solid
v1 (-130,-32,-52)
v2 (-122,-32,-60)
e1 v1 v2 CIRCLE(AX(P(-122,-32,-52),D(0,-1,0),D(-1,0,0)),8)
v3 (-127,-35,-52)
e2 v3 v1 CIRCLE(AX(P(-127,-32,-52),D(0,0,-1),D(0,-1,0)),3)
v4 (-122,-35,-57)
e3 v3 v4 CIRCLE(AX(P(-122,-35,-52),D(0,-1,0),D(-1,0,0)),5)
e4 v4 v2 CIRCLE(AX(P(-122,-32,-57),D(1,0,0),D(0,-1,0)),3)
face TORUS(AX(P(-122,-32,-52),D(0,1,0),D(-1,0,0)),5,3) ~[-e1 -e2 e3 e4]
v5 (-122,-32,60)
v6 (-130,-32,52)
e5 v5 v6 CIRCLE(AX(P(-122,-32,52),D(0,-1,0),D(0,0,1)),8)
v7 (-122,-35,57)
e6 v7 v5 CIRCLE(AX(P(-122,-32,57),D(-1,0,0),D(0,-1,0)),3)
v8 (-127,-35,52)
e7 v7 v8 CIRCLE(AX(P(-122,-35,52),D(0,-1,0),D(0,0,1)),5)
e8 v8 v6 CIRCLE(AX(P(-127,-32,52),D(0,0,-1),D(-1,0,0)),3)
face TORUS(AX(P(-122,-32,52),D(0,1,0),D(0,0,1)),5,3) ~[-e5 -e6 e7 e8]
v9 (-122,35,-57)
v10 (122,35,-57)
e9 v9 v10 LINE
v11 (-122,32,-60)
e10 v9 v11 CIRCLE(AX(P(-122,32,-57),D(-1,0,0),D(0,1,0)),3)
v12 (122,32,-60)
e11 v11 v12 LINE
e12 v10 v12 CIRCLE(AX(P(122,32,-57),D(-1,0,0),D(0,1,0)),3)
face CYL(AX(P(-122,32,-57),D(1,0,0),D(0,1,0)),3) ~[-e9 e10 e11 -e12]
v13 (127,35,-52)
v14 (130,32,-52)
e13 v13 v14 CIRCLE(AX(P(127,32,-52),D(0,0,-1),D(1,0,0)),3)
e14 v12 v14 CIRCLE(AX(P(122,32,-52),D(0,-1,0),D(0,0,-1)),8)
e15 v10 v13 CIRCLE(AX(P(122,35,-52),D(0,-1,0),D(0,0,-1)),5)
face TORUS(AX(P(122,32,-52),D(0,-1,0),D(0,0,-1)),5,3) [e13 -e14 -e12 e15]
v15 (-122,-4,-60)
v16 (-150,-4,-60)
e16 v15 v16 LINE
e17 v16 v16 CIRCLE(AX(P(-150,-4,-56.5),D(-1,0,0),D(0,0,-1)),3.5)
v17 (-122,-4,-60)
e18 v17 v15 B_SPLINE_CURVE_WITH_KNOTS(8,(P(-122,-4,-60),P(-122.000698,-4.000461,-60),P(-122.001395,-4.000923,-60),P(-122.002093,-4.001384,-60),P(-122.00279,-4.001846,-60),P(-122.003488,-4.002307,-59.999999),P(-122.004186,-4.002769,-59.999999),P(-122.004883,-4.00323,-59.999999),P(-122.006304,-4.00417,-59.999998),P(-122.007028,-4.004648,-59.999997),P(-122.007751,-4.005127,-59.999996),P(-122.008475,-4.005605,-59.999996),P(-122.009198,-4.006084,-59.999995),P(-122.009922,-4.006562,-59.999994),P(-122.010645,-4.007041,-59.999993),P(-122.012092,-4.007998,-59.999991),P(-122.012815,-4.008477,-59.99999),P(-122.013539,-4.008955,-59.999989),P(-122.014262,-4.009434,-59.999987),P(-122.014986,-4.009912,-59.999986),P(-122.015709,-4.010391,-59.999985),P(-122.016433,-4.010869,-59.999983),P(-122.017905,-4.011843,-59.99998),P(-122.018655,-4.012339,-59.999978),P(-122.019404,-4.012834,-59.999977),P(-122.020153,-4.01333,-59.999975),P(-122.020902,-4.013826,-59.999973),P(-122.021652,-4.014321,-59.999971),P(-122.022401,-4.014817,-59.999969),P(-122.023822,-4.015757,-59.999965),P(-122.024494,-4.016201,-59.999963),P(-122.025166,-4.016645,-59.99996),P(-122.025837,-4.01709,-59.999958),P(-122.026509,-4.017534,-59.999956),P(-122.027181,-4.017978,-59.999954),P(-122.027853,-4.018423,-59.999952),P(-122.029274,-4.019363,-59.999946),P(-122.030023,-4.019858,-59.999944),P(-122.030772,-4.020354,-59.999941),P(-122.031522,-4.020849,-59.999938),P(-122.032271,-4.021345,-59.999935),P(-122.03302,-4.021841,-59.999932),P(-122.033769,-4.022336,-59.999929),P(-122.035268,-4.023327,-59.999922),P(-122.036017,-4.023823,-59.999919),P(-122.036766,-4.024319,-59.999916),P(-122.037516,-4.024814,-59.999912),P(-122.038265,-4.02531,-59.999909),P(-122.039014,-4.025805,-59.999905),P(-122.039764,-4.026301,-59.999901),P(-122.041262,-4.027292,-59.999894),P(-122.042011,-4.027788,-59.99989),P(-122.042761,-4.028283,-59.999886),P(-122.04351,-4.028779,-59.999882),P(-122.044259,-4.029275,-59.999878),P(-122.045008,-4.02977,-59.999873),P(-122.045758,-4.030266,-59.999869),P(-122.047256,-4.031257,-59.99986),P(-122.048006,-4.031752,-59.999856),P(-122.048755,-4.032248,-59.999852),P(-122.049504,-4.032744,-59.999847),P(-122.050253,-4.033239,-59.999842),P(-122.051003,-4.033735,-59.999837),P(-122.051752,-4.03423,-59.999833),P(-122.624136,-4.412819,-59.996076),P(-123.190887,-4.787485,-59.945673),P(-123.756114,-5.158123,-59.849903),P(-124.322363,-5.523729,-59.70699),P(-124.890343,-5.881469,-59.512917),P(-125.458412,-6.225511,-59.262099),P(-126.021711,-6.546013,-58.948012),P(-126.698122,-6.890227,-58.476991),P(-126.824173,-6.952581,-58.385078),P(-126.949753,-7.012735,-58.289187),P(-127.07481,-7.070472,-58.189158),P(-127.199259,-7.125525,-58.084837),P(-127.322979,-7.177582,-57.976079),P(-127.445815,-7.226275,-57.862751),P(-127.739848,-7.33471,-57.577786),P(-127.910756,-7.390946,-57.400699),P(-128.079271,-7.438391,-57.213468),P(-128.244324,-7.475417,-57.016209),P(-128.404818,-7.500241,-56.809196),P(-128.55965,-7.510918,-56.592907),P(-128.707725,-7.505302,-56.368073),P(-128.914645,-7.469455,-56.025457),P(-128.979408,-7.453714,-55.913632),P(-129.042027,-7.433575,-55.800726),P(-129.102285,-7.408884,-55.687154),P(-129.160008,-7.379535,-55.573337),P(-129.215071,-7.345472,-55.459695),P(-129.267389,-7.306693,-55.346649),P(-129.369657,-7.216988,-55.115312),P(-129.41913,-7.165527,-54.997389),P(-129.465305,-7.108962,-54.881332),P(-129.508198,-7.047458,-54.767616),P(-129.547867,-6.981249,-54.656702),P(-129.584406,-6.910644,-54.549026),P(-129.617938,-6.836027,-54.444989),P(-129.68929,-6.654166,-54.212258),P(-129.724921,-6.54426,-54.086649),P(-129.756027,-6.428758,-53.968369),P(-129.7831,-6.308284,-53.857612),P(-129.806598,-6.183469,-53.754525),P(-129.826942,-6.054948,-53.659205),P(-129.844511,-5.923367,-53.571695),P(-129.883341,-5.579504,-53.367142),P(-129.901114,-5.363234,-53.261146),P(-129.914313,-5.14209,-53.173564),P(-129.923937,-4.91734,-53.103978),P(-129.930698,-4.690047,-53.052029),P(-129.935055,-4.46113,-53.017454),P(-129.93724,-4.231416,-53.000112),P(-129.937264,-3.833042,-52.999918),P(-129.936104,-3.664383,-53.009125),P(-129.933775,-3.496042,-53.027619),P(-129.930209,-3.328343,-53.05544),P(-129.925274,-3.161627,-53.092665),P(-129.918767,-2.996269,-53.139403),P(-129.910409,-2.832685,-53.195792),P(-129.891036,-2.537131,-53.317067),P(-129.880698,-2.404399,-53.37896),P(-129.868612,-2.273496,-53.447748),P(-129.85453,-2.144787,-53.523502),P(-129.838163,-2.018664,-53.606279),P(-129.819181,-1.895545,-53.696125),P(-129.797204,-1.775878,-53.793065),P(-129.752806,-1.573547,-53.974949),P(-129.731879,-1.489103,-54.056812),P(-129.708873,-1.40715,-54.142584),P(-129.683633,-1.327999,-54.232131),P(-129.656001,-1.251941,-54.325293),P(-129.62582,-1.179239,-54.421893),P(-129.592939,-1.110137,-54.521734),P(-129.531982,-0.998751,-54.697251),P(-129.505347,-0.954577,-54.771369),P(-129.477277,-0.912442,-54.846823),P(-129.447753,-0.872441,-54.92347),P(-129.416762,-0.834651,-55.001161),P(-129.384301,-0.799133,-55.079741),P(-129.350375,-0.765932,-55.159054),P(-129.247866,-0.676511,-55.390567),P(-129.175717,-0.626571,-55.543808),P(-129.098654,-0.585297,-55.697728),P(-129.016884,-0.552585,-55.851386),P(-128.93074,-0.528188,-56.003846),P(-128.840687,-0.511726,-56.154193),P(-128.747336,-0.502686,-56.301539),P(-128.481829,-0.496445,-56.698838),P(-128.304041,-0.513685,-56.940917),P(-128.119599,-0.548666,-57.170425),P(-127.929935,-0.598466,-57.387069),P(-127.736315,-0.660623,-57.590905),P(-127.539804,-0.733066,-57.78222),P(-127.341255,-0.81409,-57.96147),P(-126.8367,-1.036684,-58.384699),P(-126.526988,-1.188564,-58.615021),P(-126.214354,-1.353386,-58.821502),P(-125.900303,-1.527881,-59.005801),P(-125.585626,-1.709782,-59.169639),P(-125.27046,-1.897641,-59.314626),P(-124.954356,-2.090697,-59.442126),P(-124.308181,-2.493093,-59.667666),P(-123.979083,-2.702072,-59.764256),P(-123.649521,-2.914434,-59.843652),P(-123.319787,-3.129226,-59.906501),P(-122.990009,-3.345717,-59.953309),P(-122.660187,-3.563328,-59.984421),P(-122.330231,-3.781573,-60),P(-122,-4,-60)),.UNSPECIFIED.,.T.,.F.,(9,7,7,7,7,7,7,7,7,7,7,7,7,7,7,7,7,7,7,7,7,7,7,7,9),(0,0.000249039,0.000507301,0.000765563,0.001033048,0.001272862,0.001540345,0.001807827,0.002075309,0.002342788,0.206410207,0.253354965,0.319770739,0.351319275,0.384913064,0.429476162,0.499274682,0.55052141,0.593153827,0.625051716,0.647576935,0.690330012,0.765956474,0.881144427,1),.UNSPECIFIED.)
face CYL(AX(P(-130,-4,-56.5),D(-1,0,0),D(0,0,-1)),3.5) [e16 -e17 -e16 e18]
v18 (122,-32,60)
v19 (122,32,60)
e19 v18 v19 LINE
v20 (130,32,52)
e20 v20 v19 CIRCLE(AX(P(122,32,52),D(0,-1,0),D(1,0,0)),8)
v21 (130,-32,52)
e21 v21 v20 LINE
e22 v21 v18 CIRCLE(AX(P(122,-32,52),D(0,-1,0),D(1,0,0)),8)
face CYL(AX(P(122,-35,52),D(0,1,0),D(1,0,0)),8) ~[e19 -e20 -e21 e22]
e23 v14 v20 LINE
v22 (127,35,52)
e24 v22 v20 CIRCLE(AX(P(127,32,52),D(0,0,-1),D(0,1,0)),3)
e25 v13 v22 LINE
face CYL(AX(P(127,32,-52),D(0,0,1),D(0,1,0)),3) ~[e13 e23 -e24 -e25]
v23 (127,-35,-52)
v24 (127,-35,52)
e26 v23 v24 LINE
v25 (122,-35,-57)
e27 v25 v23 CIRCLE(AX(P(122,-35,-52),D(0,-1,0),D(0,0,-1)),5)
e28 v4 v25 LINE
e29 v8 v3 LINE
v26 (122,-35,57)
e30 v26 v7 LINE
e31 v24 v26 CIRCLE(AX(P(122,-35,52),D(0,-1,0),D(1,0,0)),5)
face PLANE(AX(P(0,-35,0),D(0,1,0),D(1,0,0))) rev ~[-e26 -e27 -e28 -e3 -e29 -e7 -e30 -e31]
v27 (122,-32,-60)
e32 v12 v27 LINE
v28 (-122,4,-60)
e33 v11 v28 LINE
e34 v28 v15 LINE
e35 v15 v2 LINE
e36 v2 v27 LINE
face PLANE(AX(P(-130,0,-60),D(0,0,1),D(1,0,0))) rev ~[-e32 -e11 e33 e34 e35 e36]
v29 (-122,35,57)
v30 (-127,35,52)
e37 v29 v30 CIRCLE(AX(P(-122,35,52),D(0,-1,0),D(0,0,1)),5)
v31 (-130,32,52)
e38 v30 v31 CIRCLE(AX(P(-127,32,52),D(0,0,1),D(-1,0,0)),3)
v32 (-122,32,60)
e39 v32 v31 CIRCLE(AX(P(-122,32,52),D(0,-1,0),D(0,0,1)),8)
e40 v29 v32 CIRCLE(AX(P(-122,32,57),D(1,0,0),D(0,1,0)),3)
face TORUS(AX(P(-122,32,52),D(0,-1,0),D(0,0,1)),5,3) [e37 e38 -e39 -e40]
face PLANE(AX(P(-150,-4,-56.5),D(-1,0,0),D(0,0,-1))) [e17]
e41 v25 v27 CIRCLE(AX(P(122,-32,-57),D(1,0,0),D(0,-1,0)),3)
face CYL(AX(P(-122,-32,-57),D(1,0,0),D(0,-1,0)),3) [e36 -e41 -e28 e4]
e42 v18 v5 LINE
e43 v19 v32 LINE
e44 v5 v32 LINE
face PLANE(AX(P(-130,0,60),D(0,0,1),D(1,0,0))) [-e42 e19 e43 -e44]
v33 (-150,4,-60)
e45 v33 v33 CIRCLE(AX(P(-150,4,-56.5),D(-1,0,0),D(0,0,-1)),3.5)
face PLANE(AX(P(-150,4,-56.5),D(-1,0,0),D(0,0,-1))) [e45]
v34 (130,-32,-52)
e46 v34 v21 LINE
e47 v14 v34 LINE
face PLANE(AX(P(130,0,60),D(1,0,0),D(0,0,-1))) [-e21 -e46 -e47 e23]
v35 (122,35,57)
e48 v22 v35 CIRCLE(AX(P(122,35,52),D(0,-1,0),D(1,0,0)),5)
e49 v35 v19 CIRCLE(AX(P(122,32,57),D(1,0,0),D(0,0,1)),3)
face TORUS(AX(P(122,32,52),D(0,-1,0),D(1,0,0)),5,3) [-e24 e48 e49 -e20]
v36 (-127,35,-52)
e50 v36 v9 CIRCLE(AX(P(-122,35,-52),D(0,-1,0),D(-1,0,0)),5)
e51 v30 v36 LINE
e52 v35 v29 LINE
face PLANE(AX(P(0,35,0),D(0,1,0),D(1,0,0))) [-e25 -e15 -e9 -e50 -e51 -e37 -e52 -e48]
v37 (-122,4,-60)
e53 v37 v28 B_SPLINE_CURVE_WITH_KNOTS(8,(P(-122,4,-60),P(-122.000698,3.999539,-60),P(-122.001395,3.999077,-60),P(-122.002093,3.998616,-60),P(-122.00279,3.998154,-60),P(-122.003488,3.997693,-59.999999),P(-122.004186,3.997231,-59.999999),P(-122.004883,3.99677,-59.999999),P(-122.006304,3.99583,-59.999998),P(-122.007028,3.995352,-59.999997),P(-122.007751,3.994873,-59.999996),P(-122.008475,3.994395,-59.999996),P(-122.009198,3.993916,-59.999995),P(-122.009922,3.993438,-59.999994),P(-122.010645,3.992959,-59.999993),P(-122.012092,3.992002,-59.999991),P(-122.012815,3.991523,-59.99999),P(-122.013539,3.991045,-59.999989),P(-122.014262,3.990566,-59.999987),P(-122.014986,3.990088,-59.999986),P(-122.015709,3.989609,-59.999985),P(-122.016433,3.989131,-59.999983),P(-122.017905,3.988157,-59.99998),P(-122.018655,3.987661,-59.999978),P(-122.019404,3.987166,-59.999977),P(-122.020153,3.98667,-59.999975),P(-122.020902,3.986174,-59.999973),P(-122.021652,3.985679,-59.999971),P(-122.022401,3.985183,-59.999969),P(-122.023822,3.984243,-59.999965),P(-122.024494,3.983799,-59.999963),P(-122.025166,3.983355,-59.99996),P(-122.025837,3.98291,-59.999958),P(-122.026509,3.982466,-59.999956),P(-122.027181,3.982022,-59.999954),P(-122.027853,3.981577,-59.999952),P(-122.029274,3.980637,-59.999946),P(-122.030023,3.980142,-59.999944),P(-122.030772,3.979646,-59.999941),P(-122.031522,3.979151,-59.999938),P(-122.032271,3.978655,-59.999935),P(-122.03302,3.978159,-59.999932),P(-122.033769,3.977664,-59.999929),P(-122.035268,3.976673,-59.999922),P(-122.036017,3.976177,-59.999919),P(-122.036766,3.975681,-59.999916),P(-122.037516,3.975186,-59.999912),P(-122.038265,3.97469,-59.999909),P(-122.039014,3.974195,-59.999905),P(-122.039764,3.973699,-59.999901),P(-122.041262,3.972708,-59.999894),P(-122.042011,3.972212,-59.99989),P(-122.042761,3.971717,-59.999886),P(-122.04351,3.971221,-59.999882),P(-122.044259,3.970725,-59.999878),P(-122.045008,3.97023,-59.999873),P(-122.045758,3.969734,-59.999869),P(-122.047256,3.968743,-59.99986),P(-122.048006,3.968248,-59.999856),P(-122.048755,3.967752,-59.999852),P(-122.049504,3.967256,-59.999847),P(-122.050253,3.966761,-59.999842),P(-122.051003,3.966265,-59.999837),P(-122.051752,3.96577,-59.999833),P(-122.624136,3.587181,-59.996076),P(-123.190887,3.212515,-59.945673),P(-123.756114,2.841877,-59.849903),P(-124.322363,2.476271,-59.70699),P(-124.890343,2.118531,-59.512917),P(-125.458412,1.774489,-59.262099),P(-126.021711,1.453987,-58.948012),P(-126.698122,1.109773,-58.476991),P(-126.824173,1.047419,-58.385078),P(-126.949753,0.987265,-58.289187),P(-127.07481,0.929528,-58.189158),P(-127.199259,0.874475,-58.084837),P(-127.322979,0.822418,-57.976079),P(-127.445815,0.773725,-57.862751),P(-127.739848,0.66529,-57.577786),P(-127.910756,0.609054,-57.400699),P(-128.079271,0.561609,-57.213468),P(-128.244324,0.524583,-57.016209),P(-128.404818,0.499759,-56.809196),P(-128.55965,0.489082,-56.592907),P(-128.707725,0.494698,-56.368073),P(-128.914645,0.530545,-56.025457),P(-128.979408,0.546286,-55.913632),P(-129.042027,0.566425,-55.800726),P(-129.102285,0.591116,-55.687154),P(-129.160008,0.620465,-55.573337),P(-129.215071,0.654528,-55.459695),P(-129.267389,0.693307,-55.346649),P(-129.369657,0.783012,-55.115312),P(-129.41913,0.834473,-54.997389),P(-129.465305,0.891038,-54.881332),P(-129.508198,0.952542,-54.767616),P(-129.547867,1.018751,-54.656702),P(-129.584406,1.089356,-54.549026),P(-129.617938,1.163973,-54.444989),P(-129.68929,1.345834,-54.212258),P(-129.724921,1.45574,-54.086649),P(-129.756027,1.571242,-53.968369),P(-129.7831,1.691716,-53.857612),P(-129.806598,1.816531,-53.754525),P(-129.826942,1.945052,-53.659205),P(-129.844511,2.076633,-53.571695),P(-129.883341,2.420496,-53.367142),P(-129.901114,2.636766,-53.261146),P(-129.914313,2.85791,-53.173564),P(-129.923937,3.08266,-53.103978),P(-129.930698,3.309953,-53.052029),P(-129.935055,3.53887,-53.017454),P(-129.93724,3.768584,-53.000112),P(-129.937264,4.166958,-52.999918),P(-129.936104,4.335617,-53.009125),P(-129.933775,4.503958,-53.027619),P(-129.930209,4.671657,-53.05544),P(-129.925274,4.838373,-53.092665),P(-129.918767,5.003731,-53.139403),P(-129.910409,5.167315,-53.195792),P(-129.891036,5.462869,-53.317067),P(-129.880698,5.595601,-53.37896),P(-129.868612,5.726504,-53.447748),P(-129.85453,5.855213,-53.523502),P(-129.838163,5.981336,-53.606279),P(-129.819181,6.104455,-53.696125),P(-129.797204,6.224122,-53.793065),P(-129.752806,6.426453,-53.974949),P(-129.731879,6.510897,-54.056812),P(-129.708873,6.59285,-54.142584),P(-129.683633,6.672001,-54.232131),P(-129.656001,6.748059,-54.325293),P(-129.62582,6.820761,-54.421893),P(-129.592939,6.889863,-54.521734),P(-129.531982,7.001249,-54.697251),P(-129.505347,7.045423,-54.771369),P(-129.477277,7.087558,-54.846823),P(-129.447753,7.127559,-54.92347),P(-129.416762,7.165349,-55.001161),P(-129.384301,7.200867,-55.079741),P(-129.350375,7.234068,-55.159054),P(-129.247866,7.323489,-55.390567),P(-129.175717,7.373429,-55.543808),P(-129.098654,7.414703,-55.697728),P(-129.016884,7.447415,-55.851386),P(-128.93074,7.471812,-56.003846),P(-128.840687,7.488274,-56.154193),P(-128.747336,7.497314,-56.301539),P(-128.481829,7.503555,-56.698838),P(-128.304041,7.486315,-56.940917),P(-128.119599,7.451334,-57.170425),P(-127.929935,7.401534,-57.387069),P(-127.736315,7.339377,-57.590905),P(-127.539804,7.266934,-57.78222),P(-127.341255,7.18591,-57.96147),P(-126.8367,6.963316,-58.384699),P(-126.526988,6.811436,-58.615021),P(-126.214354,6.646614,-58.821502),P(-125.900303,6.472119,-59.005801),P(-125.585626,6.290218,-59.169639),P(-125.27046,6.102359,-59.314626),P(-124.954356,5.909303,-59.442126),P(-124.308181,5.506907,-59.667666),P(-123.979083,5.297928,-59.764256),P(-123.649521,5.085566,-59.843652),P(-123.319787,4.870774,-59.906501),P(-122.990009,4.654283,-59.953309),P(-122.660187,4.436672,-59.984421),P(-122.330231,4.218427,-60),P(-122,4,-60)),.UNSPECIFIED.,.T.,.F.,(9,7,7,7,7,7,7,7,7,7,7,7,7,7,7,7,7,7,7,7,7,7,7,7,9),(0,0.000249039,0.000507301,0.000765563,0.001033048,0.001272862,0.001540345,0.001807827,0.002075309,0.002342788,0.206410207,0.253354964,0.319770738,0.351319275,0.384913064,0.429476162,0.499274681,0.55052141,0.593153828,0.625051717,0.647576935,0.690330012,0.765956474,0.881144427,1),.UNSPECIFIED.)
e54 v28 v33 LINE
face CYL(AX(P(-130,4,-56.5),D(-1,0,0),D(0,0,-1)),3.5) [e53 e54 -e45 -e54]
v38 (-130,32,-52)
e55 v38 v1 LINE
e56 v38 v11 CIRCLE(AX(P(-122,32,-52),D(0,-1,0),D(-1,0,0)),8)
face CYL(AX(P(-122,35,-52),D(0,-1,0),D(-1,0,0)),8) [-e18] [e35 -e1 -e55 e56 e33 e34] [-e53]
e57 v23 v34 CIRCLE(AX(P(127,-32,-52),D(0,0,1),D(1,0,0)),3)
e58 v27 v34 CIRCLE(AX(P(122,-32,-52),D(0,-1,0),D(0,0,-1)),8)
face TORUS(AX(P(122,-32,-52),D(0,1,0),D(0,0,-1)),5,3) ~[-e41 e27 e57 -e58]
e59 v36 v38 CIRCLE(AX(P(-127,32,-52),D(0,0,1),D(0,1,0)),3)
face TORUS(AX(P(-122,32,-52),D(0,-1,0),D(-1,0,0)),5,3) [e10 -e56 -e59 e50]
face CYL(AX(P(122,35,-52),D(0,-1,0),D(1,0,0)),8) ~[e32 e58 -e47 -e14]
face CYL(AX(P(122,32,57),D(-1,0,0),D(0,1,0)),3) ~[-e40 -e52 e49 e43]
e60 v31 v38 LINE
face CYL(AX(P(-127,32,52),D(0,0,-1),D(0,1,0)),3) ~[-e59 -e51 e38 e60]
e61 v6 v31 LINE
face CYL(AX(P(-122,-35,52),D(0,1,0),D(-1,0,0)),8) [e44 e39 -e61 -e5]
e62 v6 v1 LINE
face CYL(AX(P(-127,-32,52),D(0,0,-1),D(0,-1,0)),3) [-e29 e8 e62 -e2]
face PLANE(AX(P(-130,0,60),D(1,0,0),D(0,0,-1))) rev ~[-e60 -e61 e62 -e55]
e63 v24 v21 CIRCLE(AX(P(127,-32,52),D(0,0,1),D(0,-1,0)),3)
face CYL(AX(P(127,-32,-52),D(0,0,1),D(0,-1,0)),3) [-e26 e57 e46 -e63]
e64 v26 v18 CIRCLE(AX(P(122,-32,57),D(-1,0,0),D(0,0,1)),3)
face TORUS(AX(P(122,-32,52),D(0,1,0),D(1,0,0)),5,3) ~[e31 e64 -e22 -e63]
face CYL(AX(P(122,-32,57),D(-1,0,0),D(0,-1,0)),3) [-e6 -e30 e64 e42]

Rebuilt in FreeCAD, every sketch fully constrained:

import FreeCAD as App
import Part
import Sketcher
from FreeCAD import Vector
Q = App.Units.Quantity


def edges_at(feature, points):
    """Names of the edges that pass closest to the given points."""
    edges = feature.Shape.Edges
    near = lambda p: min(range(len(edges)), key=lambda i: edges[i].distToShape(Part.Vertex(*p))[0])
    return sorted({f"Edge{near(p) + 1}" for p in points})


def add_polygon(sketch, points):
    """Adds a closed chain of lines whose ends are joined by coincident constraints."""
    first, n = sketch.GeometryCount, len(points)
    for a, b in zip(points, points[1:] + points[:1]):
        sketch.addGeometry(Part.LineSegment(App.Vector(*a, 0), App.Vector(*b, 0)), False)
    for i in range(n):
        sketch.addConstraint(Sketcher.Constraint("Coincident", first + i, 2, first + (i + 1) % n, 1))

doc = App.newDocument("Part")
body = doc.addObject("PartDesign::Body", "Body")

# Sketch on XZ plane
sketch1 = body.newObject("Sketcher::SketchObject", "Sketch")
sketch1.AttachmentSupport = (doc.getObject("XZ_Plane"), [""])
sketch1.MapMode = "FlatFace"
add_polygon(sketch1, [(-130, -60), (-130, 60), (130, 60), (130, -60)])  # lines 0-3
sketch1.addConstraint(Sketcher.Constraint("Vertical", 0))
sketch1.addConstraint(Sketcher.Constraint("Horizontal", 1))
sketch1.addConstraint(Sketcher.Constraint("Vertical", 2))
sketch1.addConstraint(Sketcher.Constraint("Horizontal", 3))
sketch1.addConstraint(Sketcher.Constraint("Symmetric", 0, 2, 2, 2, -1, 1))
sketch1.addConstraint(Sketcher.Constraint("DistanceX", 1, 1, 1, 2, Q("260 mm")))
sketch1.addConstraint(Sketcher.Constraint("DistanceY", 0, 1, 0, 2, Q("120 mm")))
pad1 = body.newObject("PartDesign::Pad", "Pad")
pad1.Profile = sketch1
pad1.Length = 70
pad1.Midplane = True
doc.recompute()

fillet = body.newObject("PartDesign::Fillet", "Fillet")
fillet.Base = (pad1, edges_at(pad1, [
    (-130, 0, -60),
    (130, 0, -60),
    (130, 0, 60),
    (-130, 0, 60),
]))
fillet.Radius = 8
doc.recompute()

fillet2 = body.newObject("PartDesign::Fillet", "Fillet001")
fillet2.Base = (fillet, edges_at(fillet, [
    (0, -35, -60),
    (0, 35, -60),
    (-130, -35, 0),
    (130, -35, 0),
    (0, -35, 60),
    (-127.657, -35, -57.657),
    (-127.657, -35, 57.657),
    (127.657, -35, 57.657),
    (127.657, -35, -57.657),
    (130, 35, 0),
    (-130, 35, 0),
    (0, 35, 60),
    (-127.657, 35, -57.657),
    (-127.657, 35, 57.657),
    (127.657, 35, 57.657),
    (127.657, 35, -57.657),
]))
fillet2.Radius = 3

# Sketch on YZ plane
sketch2 = body.newObject("Sketcher::SketchObject", "Sketch001")
sketch2.AttachmentSupport = (doc.getObject("YZ_Plane"), [""])
sketch2.MapMode = "FlatFace"
sketch2.AttachmentOffset = App.Placement(Vector(0, 0, -130), App.Rotation())
sketch2.addGeometry(Part.Circle(Vector(4, -56.5, 0), Vector(0, 0, 1), 3.5), False)
sketch2.addGeometry(Part.Circle(Vector(-4, -56.5, 0), Vector(0, 0, 1), 3.5), False)
sketch2.addConstraint(Sketcher.Constraint("Equal", 0, 1))
sketch2.addConstraint(Sketcher.Constraint("Symmetric", 0, 3, 1, 3, -2))
sketch2.addConstraint(Sketcher.Constraint("Diameter", 0, Q("7 mm")))
sketch2.addConstraint(Sketcher.Constraint("DistanceX", -1, 1, 0, 3, Q("4 mm")))
sketch2.addConstraint(Sketcher.Constraint("DistanceY", 0, 3, -1, 1, Q("56.5 mm")))
pad2 = body.newObject("PartDesign::Pad", "Pad001")
pad2.Profile = sketch2
pad2.Length = 40
pad2.Midplane = True

doc.recompute()
